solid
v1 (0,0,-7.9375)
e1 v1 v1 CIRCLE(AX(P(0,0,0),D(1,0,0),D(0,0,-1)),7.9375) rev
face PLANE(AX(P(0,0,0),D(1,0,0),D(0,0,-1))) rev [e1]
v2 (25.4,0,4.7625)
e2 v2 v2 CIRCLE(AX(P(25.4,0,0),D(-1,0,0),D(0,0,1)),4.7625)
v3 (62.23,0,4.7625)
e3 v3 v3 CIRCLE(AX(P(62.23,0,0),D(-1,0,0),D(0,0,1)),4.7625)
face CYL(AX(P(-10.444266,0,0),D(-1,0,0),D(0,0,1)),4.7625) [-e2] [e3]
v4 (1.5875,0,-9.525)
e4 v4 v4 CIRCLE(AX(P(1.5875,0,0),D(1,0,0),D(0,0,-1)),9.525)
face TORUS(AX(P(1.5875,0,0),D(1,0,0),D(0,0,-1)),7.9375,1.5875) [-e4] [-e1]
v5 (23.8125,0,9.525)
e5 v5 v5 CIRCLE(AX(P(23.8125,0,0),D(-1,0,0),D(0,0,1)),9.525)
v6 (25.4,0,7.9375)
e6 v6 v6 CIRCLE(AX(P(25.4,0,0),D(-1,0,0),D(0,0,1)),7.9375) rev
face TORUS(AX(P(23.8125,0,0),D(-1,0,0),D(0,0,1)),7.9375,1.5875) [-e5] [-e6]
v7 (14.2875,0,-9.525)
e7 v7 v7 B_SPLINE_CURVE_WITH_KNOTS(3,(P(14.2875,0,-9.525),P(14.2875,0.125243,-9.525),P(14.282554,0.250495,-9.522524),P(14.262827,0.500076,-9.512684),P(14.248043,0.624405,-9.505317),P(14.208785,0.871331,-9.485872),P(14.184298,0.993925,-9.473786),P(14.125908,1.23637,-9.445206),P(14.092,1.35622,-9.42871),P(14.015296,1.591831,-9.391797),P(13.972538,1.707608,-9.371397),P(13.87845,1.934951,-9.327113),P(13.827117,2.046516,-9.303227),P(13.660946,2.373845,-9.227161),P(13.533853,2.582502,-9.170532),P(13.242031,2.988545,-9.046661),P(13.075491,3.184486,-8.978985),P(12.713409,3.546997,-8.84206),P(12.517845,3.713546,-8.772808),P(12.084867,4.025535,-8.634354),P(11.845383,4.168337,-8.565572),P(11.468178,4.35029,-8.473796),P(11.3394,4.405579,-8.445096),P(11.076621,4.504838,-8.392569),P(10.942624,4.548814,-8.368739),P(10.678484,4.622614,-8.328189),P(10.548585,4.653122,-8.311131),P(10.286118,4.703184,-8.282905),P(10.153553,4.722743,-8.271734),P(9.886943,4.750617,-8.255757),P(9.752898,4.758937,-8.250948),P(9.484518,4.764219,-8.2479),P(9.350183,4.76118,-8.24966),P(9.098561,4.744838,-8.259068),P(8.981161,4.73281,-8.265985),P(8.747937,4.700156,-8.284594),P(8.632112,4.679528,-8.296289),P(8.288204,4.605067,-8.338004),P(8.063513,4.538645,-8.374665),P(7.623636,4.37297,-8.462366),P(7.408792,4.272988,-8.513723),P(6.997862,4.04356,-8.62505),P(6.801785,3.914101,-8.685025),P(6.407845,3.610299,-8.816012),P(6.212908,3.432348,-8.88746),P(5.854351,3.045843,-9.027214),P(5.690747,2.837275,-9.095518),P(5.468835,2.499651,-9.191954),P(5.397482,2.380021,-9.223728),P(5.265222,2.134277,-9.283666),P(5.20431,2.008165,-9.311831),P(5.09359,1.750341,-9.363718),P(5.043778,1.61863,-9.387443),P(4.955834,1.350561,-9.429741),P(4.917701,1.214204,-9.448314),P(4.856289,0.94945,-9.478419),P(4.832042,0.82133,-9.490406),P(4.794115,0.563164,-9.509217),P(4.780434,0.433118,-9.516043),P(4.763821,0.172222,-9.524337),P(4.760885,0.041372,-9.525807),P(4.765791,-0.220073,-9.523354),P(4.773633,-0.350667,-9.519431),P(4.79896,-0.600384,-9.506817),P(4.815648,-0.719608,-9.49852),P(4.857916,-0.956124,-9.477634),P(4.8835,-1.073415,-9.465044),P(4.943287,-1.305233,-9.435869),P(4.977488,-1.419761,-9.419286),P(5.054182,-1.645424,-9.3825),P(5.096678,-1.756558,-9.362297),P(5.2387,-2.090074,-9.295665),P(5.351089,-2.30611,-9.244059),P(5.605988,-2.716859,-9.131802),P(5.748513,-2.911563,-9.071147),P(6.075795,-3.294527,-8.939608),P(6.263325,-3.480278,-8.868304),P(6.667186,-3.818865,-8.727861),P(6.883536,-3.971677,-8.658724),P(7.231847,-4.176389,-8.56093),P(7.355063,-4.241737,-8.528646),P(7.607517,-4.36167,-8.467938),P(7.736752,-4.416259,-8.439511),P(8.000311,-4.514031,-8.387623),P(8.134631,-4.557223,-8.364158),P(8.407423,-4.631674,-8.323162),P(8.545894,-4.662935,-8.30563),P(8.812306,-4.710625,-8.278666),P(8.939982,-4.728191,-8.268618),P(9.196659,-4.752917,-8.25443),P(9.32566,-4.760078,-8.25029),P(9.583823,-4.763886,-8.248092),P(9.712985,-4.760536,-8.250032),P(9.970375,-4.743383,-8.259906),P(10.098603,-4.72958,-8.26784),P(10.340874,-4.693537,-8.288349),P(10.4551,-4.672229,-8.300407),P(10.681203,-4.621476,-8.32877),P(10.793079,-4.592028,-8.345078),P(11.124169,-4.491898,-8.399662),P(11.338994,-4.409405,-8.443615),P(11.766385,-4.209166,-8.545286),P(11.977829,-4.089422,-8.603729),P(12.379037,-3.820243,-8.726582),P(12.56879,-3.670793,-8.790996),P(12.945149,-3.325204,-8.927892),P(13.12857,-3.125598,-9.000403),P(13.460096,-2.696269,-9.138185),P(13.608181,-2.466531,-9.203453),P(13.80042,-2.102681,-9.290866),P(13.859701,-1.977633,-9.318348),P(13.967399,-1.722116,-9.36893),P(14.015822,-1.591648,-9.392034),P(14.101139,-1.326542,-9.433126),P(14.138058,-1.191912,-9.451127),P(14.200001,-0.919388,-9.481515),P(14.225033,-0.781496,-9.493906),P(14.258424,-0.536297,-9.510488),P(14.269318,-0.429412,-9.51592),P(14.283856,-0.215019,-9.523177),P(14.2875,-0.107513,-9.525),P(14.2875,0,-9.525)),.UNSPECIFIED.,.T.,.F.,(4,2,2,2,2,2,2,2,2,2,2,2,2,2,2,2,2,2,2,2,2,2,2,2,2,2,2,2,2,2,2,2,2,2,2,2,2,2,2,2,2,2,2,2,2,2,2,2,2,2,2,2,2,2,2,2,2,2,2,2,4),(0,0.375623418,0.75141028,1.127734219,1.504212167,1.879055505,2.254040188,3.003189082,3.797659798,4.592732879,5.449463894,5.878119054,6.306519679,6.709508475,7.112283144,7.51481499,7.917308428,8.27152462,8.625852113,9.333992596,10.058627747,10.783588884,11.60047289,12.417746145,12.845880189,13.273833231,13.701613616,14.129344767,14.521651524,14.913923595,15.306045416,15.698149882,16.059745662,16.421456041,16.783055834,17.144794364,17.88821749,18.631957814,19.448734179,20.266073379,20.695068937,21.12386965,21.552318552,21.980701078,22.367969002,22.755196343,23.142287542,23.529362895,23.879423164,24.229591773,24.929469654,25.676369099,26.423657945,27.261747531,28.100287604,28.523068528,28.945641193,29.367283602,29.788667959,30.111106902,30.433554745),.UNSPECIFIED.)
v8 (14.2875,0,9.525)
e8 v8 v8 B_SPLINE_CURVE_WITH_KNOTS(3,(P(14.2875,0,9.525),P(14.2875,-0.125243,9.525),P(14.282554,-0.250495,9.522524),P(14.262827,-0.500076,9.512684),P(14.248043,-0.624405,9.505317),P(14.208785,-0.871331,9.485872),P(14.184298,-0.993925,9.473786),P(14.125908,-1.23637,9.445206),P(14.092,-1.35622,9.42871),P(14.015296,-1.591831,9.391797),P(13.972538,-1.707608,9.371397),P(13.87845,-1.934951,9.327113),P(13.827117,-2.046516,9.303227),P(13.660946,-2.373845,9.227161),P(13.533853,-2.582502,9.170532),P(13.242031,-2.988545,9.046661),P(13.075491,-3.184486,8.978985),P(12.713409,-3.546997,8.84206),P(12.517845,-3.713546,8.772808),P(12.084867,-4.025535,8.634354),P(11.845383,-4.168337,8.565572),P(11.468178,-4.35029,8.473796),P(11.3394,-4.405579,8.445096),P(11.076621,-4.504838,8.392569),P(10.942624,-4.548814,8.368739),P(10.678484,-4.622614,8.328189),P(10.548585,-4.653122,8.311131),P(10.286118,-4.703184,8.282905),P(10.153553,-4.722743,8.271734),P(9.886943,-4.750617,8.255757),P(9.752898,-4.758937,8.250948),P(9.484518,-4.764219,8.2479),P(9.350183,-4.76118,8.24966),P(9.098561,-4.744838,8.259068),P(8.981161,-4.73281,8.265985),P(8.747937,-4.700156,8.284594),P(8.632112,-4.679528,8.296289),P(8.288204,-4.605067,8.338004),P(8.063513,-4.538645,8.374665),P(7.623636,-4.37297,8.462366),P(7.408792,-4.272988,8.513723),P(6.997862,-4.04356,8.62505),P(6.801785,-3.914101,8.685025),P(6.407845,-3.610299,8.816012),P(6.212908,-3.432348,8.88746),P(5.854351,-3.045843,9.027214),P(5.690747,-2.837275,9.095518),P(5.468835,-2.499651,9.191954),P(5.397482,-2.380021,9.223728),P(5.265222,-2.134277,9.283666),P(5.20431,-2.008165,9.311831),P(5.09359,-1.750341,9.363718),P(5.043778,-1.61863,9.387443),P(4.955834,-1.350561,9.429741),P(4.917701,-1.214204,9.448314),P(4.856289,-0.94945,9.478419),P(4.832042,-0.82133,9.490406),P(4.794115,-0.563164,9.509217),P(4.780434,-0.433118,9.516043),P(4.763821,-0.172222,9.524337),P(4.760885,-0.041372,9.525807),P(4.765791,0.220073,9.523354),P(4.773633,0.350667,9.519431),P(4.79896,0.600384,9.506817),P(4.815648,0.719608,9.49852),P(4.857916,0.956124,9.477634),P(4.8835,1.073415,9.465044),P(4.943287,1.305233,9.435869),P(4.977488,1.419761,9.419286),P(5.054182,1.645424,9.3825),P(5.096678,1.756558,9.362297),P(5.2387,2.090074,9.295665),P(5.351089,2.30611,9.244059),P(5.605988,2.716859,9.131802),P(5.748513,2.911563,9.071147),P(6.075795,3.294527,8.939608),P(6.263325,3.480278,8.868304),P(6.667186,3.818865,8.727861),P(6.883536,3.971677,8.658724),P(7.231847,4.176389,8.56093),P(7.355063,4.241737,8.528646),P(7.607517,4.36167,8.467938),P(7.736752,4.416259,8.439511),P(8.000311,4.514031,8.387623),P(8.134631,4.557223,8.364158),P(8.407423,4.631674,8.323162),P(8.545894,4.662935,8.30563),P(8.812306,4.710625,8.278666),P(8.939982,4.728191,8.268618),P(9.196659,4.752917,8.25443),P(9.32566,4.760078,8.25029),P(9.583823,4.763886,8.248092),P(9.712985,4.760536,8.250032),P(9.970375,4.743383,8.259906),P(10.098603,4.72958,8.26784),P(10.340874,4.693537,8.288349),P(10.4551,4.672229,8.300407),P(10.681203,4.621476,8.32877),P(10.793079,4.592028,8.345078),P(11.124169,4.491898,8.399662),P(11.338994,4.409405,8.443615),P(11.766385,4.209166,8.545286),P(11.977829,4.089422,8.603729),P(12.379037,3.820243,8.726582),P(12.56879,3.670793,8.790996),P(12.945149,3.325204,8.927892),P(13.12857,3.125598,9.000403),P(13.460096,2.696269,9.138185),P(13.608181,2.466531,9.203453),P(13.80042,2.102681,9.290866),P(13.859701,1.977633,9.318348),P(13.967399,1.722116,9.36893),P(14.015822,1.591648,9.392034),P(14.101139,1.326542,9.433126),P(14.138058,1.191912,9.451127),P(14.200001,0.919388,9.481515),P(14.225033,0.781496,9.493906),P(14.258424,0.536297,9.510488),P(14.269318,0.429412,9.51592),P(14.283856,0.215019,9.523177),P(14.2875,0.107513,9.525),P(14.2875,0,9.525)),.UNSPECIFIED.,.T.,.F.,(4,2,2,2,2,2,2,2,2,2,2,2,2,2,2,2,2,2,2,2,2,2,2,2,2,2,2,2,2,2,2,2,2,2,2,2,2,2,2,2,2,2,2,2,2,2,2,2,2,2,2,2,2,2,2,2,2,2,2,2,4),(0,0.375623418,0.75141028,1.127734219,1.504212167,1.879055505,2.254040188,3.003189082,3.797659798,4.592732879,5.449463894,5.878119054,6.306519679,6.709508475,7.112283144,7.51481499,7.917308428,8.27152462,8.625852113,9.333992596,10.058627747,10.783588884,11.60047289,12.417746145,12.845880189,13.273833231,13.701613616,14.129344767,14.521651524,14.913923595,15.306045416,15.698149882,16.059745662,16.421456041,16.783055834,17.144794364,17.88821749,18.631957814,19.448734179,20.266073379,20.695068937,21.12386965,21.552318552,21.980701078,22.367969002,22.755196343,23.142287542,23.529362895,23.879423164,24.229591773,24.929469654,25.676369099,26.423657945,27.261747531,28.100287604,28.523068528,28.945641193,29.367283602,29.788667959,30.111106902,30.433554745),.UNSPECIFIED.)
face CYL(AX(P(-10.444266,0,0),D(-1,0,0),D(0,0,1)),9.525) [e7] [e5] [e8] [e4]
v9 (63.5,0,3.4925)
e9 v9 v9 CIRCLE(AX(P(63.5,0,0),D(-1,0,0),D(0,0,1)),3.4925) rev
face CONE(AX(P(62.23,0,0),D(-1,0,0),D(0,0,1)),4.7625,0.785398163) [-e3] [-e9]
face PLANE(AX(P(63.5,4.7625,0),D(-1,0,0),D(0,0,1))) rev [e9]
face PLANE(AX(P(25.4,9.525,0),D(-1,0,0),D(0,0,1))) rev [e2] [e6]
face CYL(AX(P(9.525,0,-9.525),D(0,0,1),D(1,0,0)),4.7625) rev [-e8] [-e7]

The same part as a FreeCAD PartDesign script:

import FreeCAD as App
import Part
import Sketcher
from FreeCAD import Vector
Q = App.Units.Quantity


def edges_at(feature, points):
    """Names of the edges that pass closest to the given points."""
    edges = feature.Shape.Edges
    near = lambda p: min(range(len(edges)), key=lambda i: edges[i].distToShape(Part.Vertex(*p))[0])
    return sorted({f"Edge{near(p) + 1}" for p in points})


def add_polygon(sketch, points):
    """Adds a closed chain of lines whose ends are joined by coincident constraints."""
    first, n = sketch.GeometryCount, len(points)
    for a, b in zip(points, points[1:] + points[:1]):
        sketch.addGeometry(Part.LineSegment(App.Vector(*a, 0), App.Vector(*b, 0)), False)
    for i in range(n):
        sketch.addConstraint(Sketcher.Constraint("Coincident", first + i, 2, first + (i + 1) % n, 1))

doc = App.newDocument("Part")
body = doc.addObject("PartDesign::Body", "Body")

# Sketch on XY plane
sketch1 = body.newObject("Sketcher::SketchObject", "Sketch")
sketch1.AttachmentSupport = (doc.getObject("XY_Plane"), [""])
sketch1.MapMode = "FlatFace"
add_polygon(sketch1, [(0, 9.525), (0, 0), (63.5, 0), (63.5, 4.7625), (25.4, 4.7625), (25.4, 9.525)])  # lines 0-5
sketch1.addConstraint([
    Sketcher.Constraint("Vertical", 0),
    Sketcher.Constraint("Horizontal", 1),
    Sketcher.Constraint("Vertical", 2),
    Sketcher.Constraint("Horizontal", 3),
    Sketcher.Constraint("Vertical", 4),
    Sketcher.Constraint("Horizontal", 5),
    Sketcher.Constraint("Coincident", 0, 2, -1, 1),
    Sketcher.Constraint("Equal", 2, 4),
    Sketcher.Constraint("DistanceX", 5, 2, 5, 1, Q("1 in")),
    Sketcher.Constraint("DistanceX", 1, 1, 1, 2, Q("2.5 in")),
    Sketcher.Constraint("DistanceY", 0, 2, 0, 1, Q("0.375 in")),
])
revolution = body.newObject("PartDesign::Revolution", "Revolution")
revolution.Profile = sketch1
revolution.ReferenceAxis = (sketch1, ["H_Axis"])
revolution.Angle = 360
doc.recompute()

fillet = body.newObject("PartDesign::Fillet", "Fillet")
fillet.Base = (revolution, edges_at(revolution, [(25.4, 0, -9.525), (0, 0, -9.525)]))
fillet.Radius = Q("0.0625 in")

# Sketch on XY plane
sketch2 = body.newObject("Sketcher::SketchObject", "Sketch001")
sketch2.AttachmentSupport = (doc.getObject("XY_Plane"), [""])
sketch2.MapMode = "FlatFace"
sketch2.AttachmentOffset = App.Placement(Vector(0, 0, 0.4 * 25.4), App.Rotation())
sketch2.addGeometry(Part.Circle(Vector(9.525, 0, 0), Vector(0, 0, 1), 4.7625), False)
sketch2.addConstraint([
    Sketcher.Constraint("PointOnObject", 0, 3, -1),
    Sketcher.Constraint("Diameter", 0, Q("0.375 in")),
    Sketcher.Constraint("DistanceX", -1, 1, 0, 3, Q("0.375 in")),
])
pocket1 = body.newObject("PartDesign::Pocket", "Pocket")
pocket1.Profile = sketch2
pocket1.Type = "ThroughAll"
doc.recompute()

chamfer = body.newObject("PartDesign::Chamfer", "Chamfer")
chamfer.Base = (pocket1, edges_at(pocket1, [(63.5, 0, -4.763)]))
chamfer.Size = Q("0.05 in")

doc.recompute()
